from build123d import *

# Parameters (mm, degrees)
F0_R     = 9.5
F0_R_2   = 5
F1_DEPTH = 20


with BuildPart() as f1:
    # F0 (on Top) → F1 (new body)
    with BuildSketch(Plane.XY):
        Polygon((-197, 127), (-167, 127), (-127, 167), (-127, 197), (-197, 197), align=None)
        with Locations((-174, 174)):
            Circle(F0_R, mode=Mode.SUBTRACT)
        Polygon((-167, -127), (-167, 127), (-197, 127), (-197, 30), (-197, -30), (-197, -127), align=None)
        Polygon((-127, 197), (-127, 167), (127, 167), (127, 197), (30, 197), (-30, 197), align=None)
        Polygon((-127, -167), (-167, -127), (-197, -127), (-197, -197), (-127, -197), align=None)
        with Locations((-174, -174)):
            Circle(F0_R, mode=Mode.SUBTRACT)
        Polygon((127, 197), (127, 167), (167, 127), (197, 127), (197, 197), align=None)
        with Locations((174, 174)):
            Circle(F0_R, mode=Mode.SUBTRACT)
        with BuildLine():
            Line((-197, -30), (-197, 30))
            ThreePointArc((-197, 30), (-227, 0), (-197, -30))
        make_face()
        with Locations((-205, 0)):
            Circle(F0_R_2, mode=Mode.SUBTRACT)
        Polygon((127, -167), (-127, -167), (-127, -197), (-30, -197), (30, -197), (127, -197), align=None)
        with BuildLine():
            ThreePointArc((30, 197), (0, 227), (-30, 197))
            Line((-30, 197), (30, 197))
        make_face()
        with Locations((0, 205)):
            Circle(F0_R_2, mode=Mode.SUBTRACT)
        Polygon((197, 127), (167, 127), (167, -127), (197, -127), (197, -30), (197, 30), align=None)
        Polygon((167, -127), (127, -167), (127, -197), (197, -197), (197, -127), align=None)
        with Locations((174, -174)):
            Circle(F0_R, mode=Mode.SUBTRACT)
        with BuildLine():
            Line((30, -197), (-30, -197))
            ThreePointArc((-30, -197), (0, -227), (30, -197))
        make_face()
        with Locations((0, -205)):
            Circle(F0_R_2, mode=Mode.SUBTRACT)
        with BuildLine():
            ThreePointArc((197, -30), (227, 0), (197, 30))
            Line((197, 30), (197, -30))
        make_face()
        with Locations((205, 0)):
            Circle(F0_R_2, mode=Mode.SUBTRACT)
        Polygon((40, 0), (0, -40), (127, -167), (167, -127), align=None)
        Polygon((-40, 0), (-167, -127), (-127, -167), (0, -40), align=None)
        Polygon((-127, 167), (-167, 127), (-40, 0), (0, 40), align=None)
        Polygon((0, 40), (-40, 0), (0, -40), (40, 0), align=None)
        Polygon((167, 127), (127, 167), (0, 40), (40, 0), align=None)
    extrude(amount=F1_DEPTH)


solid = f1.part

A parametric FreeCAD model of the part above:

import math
import FreeCAD as App
import Part
import Sketcher

V = App.Vector

doc = App.newDocument("Part")
body = doc.addObject("PartDesign::Body", "Body")

# Sketch on XY plane
sketch1 = doc.addObject("Sketcher::SketchObject", "Sketch")
body.addObject(sketch1)
sketch1.AttachmentSupport = (doc.XY_Plane, [""])
sketch1.MapMode = "FlatFace"
sketch1.addGeometry([
    Part.LineSegment(V(-197, 197, 0), V(-197, 30, 0)),  # 0
    Part.ArcOfCircle(Part.Circle(V(-197, 0, 0), V(0, 0, 1), 30), math.radians(90), math.radians(270)),  # 1
    Part.LineSegment(V(-197, -30, 0), V(-197, -197, 0)),  # 2
    Part.LineSegment(V(-197, -197, 0), V(-30, -197, 0)),  # 3
    Part.ArcOfCircle(Part.Circle(V(0, -197, 0), V(0, 0, 1), 30), math.radians(180), math.radians(360)),  # 4
    Part.LineSegment(V(30, -197, 0), V(197, -197, 0)),  # 5
    Part.LineSegment(V(197, -197, 0), V(197, -30, 0)),  # 6
    Part.ArcOfCircle(Part.Circle(V(197, 0, 0), V(0, 0, 1), 30), math.radians(-90), math.radians(90)),  # 7
    Part.LineSegment(V(197, 30, 0), V(197, 197, 0)),  # 8
    Part.LineSegment(V(197, 197, 0), V(30, 197, 0)),  # 9
    Part.ArcOfCircle(Part.Circle(V(0, 197, 0), V(0, 0, 1), 30), math.radians(0), math.radians(180)),  # 10
    Part.LineSegment(V(-30, 197, 0), V(-197, 197, 0)),  # 11
    Part.Circle(V(-174, -174, 0), V(0, 0, 1), 9.5),  # 12
    Part.Circle(V(0, -205, 0), V(0, 0, 1), 5),  # 13
    Part.Circle(V(174, -174, 0), V(0, 0, 1), 9.5),  # 14
    Part.LineSegment(V(-127, -167, 0), V(0, -40, 0)),  # 15
    Part.LineSegment(V(0, -40, 0), V(127, -167, 0)),  # 16
    Part.LineSegment(V(127, -167, 0), V(-127, -167, 0)),  # 17
    Part.Circle(V(-205, 0, 0), V(0, 0, 1), 5),  # 18
    Part.LineSegment(V(-167, 127, 0), V(-40, 0, 0)),  # 19
    Part.LineSegment(V(-40, 0, 0), V(-167, -127, 0)),  # 20
    Part.LineSegment(V(-167, -127, 0), V(-167, 127, 0)),  # 21
    Part.Circle(V(-174, 174, 0), V(0, 0, 1), 9.5),  # 22
    Part.LineSegment(V(167, -127, 0), V(40, 0, 0)),  # 23
    Part.LineSegment(V(40, 0, 0), V(167, 127, 0)),  # 24
    Part.LineSegment(V(167, 127, 0), V(167, -127, 0)),  # 25
    Part.LineSegment(V(0, 40, 0), V(-127, 167, 0)),  # 26
    Part.LineSegment(V(-127, 167, 0), V(127, 167, 0)),  # 27
    Part.LineSegment(V(127, 167, 0), V(0, 40, 0)),  # 28
    Part.Circle(V(205, 0, 0), V(0, 0, 1), 5),  # 29
    Part.Circle(V(0, 205, 0), V(0, 0, 1), 5),  # 30
    Part.Circle(V(174, 174, 0), V(0, 0, 1), 9.5),  # 31
], False)
sketch1.addConstraint([
    Sketcher.Constraint("Coincident", 0, 2, 1, 1),
    Sketcher.Constraint("Coincident", 1, 2, 2, 1),
    Sketcher.Constraint("Coincident", 2, 2, 3, 1),
    Sketcher.Constraint("Coincident", 3, 2, 4, 1),
    Sketcher.Constraint("Coincident", 4, 2, 5, 1),
    Sketcher.Constraint("Coincident", 5, 2, 6, 1),
    Sketcher.Constraint("Coincident", 6, 2, 7, 1),
    Sketcher.Constraint("Coincident", 7, 2, 8, 1),
    Sketcher.Constraint("Coincident", 8, 2, 9, 1),
    Sketcher.Constraint("Coincident", 9, 2, 10, 1),
    Sketcher.Constraint("Coincident", 10, 2, 11, 1),
    Sketcher.Constraint("Coincident", 11, 2, 0, 1),
    Sketcher.Constraint("Coincident", 15, 2, 16, 1),
    Sketcher.Constraint("Coincident", 16, 2, 17, 1),
    Sketcher.Constraint("Coincident", 17, 2, 15, 1),
    Sketcher.Constraint("Coincident", 19, 2, 20, 1),
    Sketcher.Constraint("Coincident", 20, 2, 21, 1),
    Sketcher.Constraint("Coincident", 21, 2, 19, 1),
    Sketcher.Constraint("Coincident", 23, 2, 24, 1),
    Sketcher.Constraint("Coincident", 24, 2, 25, 1),
    Sketcher.Constraint("Coincident", 25, 2, 23, 1),
    Sketcher.Constraint("Coincident", 26, 2, 27, 1),
    Sketcher.Constraint("Coincident", 27, 2, 28, 1),
    Sketcher.Constraint("Coincident", 28, 2, 26, 1),
    Sketcher.Constraint("Vertical", 0),
    Sketcher.Constraint("Vertical", 2),
    Sketcher.Constraint("Horizontal", 3),
    Sketcher.Constraint("Horizontal", 5),
    Sketcher.Constraint("Vertical", 6),
    Sketcher.Constraint("Vertical", 8),
    Sketcher.Constraint("Horizontal", 9),
    Sketcher.Constraint("Horizontal", 11),
    Sketcher.Constraint("Horizontal", 17),
    Sketcher.Constraint("Vertical", 21),
    Sketcher.Constraint("Vertical", 25),
    Sketcher.Constraint("Horizontal", 27),
    Sketcher.Constraint("Equal", 1, 4),
    Sketcher.Constraint("Equal", 4, 7),
    Sketcher.Constraint("Equal", 7, 10),
    Sketcher.Constraint("Equal", 12, 14),
    Sketcher.Constraint("Equal", 13, 18),
    Sketcher.Constraint("Equal", 14, 22),
    Sketcher.Constraint("Equal", 18, 29),
    Sketcher.Constraint("Equal", 29, 30),
    Sketcher.Constraint("Equal", 22, 31),
    Sketcher.Constraint("Symmetric", 1, 3, 7, 3, -1, 1),
    Sketcher.Constraint("Symmetric", 4, 3, 10, 3, -1, 1),
    Sketcher.Constraint("Symmetric", 14, 3, 22, 3, -1, 1),
    Sketcher.Constraint("Symmetric", 18, 3, 29, 3, -1, 1),
    Sketcher.Constraint("Symmetric", 13, 3, 30, 3, -1, 1),
    Sketcher.Constraint("Symmetric", 12, 3, 31, 3, -1, 1),
    Sketcher.Constraint("Symmetric", 2, 2, 8, 2, -1, 1),
    Sketcher.Constraint("Symmetric", 5, 2, 11, 2, -1, 1),
    Sketcher.Constraint("Symmetric", 19, 2, 23, 2, -1, 1),
    Sketcher.Constraint("Symmetric", 20, 2, 24, 2, -1, 1),
    Sketcher.Constraint("Symmetric", 16, 2, 26, 2, -1, 1),
    Sketcher.Constraint("Symmetric", 15, 2, 28, 2, -1, 1),
    Sketcher.Constraint("Symmetric", 12, 3, 14, 3, -2),
    Sketcher.Constraint("Symmetric", 3, 2, 4, 2, -2),
    Sketcher.Constraint("Symmetric", 1, 2, 6, 2, -2),
    Sketcher.Constraint("PointOnObject", 13, 3, -2),
    Sketcher.Constraint("PointOnObject", 18, 3, -1),
    Sketcher.Constraint("PointOnObject", 15, 2, -2),
    Sketcher.Constraint("PointOnObject", 19, 2, -1),
    Sketcher.Constraint("Perpendicular", 15, 16),
    Sketcher.Constraint("Parallel", 16, 19),
    Sketcher.Constraint("Perpendicular", 19, 20),
    Sketcher.Constraint("Perpendicular", 20, 23),
    Sketcher.Constraint("Perpendicular", 26, 28),
    Sketcher.Constraint("Horizontal", 4, 3, 2, 2),
    Sketcher.Constraint("Horizontal", 21, 2, 24, 2),
    Sketcher.Constraint("Vertical", 1, 3, 0, 2),
    Sketcher.Constraint("Equal", 11, 0),
    Sketcher.Constraint("Equal", 27, 21),
    Sketcher.Constraint("Diameter", 12, 19.0),
    Sketcher.Constraint("Diameter", 13, 10.0),
    Sketcher.Constraint("Radius", 1, 30.0),
    Sketcher.Constraint("DistanceX", 3, 1, 3, 2, 167.0),
    Sketcher.Constraint("DistanceX", 17, 2, 17, 1, 254.0),
    Sketcher.Constraint("DistanceX", 12, 3, -1, 1, 174.0),
    Sketcher.Constraint("DistanceY", 12, 3, -1, 1, 174.0),
    Sketcher.Constraint("DistanceY", 13, 3, -1, 1, 205.0),
    Sketcher.Constraint("DistanceX", 18, 3, -1, 1, 205.0),
    Sketcher.Constraint("DistanceY", 15, 2, -1, 1, 40.0),
    Sketcher.Constraint("DistanceX", 19, 2, -1, 1, 40.0),
])
pad1 = doc.addObject("PartDesign::Pad", "Pad")
body.addObject(pad1)
pad1.Profile = sketch1
pad1.Length = 20

doc.recompute()
